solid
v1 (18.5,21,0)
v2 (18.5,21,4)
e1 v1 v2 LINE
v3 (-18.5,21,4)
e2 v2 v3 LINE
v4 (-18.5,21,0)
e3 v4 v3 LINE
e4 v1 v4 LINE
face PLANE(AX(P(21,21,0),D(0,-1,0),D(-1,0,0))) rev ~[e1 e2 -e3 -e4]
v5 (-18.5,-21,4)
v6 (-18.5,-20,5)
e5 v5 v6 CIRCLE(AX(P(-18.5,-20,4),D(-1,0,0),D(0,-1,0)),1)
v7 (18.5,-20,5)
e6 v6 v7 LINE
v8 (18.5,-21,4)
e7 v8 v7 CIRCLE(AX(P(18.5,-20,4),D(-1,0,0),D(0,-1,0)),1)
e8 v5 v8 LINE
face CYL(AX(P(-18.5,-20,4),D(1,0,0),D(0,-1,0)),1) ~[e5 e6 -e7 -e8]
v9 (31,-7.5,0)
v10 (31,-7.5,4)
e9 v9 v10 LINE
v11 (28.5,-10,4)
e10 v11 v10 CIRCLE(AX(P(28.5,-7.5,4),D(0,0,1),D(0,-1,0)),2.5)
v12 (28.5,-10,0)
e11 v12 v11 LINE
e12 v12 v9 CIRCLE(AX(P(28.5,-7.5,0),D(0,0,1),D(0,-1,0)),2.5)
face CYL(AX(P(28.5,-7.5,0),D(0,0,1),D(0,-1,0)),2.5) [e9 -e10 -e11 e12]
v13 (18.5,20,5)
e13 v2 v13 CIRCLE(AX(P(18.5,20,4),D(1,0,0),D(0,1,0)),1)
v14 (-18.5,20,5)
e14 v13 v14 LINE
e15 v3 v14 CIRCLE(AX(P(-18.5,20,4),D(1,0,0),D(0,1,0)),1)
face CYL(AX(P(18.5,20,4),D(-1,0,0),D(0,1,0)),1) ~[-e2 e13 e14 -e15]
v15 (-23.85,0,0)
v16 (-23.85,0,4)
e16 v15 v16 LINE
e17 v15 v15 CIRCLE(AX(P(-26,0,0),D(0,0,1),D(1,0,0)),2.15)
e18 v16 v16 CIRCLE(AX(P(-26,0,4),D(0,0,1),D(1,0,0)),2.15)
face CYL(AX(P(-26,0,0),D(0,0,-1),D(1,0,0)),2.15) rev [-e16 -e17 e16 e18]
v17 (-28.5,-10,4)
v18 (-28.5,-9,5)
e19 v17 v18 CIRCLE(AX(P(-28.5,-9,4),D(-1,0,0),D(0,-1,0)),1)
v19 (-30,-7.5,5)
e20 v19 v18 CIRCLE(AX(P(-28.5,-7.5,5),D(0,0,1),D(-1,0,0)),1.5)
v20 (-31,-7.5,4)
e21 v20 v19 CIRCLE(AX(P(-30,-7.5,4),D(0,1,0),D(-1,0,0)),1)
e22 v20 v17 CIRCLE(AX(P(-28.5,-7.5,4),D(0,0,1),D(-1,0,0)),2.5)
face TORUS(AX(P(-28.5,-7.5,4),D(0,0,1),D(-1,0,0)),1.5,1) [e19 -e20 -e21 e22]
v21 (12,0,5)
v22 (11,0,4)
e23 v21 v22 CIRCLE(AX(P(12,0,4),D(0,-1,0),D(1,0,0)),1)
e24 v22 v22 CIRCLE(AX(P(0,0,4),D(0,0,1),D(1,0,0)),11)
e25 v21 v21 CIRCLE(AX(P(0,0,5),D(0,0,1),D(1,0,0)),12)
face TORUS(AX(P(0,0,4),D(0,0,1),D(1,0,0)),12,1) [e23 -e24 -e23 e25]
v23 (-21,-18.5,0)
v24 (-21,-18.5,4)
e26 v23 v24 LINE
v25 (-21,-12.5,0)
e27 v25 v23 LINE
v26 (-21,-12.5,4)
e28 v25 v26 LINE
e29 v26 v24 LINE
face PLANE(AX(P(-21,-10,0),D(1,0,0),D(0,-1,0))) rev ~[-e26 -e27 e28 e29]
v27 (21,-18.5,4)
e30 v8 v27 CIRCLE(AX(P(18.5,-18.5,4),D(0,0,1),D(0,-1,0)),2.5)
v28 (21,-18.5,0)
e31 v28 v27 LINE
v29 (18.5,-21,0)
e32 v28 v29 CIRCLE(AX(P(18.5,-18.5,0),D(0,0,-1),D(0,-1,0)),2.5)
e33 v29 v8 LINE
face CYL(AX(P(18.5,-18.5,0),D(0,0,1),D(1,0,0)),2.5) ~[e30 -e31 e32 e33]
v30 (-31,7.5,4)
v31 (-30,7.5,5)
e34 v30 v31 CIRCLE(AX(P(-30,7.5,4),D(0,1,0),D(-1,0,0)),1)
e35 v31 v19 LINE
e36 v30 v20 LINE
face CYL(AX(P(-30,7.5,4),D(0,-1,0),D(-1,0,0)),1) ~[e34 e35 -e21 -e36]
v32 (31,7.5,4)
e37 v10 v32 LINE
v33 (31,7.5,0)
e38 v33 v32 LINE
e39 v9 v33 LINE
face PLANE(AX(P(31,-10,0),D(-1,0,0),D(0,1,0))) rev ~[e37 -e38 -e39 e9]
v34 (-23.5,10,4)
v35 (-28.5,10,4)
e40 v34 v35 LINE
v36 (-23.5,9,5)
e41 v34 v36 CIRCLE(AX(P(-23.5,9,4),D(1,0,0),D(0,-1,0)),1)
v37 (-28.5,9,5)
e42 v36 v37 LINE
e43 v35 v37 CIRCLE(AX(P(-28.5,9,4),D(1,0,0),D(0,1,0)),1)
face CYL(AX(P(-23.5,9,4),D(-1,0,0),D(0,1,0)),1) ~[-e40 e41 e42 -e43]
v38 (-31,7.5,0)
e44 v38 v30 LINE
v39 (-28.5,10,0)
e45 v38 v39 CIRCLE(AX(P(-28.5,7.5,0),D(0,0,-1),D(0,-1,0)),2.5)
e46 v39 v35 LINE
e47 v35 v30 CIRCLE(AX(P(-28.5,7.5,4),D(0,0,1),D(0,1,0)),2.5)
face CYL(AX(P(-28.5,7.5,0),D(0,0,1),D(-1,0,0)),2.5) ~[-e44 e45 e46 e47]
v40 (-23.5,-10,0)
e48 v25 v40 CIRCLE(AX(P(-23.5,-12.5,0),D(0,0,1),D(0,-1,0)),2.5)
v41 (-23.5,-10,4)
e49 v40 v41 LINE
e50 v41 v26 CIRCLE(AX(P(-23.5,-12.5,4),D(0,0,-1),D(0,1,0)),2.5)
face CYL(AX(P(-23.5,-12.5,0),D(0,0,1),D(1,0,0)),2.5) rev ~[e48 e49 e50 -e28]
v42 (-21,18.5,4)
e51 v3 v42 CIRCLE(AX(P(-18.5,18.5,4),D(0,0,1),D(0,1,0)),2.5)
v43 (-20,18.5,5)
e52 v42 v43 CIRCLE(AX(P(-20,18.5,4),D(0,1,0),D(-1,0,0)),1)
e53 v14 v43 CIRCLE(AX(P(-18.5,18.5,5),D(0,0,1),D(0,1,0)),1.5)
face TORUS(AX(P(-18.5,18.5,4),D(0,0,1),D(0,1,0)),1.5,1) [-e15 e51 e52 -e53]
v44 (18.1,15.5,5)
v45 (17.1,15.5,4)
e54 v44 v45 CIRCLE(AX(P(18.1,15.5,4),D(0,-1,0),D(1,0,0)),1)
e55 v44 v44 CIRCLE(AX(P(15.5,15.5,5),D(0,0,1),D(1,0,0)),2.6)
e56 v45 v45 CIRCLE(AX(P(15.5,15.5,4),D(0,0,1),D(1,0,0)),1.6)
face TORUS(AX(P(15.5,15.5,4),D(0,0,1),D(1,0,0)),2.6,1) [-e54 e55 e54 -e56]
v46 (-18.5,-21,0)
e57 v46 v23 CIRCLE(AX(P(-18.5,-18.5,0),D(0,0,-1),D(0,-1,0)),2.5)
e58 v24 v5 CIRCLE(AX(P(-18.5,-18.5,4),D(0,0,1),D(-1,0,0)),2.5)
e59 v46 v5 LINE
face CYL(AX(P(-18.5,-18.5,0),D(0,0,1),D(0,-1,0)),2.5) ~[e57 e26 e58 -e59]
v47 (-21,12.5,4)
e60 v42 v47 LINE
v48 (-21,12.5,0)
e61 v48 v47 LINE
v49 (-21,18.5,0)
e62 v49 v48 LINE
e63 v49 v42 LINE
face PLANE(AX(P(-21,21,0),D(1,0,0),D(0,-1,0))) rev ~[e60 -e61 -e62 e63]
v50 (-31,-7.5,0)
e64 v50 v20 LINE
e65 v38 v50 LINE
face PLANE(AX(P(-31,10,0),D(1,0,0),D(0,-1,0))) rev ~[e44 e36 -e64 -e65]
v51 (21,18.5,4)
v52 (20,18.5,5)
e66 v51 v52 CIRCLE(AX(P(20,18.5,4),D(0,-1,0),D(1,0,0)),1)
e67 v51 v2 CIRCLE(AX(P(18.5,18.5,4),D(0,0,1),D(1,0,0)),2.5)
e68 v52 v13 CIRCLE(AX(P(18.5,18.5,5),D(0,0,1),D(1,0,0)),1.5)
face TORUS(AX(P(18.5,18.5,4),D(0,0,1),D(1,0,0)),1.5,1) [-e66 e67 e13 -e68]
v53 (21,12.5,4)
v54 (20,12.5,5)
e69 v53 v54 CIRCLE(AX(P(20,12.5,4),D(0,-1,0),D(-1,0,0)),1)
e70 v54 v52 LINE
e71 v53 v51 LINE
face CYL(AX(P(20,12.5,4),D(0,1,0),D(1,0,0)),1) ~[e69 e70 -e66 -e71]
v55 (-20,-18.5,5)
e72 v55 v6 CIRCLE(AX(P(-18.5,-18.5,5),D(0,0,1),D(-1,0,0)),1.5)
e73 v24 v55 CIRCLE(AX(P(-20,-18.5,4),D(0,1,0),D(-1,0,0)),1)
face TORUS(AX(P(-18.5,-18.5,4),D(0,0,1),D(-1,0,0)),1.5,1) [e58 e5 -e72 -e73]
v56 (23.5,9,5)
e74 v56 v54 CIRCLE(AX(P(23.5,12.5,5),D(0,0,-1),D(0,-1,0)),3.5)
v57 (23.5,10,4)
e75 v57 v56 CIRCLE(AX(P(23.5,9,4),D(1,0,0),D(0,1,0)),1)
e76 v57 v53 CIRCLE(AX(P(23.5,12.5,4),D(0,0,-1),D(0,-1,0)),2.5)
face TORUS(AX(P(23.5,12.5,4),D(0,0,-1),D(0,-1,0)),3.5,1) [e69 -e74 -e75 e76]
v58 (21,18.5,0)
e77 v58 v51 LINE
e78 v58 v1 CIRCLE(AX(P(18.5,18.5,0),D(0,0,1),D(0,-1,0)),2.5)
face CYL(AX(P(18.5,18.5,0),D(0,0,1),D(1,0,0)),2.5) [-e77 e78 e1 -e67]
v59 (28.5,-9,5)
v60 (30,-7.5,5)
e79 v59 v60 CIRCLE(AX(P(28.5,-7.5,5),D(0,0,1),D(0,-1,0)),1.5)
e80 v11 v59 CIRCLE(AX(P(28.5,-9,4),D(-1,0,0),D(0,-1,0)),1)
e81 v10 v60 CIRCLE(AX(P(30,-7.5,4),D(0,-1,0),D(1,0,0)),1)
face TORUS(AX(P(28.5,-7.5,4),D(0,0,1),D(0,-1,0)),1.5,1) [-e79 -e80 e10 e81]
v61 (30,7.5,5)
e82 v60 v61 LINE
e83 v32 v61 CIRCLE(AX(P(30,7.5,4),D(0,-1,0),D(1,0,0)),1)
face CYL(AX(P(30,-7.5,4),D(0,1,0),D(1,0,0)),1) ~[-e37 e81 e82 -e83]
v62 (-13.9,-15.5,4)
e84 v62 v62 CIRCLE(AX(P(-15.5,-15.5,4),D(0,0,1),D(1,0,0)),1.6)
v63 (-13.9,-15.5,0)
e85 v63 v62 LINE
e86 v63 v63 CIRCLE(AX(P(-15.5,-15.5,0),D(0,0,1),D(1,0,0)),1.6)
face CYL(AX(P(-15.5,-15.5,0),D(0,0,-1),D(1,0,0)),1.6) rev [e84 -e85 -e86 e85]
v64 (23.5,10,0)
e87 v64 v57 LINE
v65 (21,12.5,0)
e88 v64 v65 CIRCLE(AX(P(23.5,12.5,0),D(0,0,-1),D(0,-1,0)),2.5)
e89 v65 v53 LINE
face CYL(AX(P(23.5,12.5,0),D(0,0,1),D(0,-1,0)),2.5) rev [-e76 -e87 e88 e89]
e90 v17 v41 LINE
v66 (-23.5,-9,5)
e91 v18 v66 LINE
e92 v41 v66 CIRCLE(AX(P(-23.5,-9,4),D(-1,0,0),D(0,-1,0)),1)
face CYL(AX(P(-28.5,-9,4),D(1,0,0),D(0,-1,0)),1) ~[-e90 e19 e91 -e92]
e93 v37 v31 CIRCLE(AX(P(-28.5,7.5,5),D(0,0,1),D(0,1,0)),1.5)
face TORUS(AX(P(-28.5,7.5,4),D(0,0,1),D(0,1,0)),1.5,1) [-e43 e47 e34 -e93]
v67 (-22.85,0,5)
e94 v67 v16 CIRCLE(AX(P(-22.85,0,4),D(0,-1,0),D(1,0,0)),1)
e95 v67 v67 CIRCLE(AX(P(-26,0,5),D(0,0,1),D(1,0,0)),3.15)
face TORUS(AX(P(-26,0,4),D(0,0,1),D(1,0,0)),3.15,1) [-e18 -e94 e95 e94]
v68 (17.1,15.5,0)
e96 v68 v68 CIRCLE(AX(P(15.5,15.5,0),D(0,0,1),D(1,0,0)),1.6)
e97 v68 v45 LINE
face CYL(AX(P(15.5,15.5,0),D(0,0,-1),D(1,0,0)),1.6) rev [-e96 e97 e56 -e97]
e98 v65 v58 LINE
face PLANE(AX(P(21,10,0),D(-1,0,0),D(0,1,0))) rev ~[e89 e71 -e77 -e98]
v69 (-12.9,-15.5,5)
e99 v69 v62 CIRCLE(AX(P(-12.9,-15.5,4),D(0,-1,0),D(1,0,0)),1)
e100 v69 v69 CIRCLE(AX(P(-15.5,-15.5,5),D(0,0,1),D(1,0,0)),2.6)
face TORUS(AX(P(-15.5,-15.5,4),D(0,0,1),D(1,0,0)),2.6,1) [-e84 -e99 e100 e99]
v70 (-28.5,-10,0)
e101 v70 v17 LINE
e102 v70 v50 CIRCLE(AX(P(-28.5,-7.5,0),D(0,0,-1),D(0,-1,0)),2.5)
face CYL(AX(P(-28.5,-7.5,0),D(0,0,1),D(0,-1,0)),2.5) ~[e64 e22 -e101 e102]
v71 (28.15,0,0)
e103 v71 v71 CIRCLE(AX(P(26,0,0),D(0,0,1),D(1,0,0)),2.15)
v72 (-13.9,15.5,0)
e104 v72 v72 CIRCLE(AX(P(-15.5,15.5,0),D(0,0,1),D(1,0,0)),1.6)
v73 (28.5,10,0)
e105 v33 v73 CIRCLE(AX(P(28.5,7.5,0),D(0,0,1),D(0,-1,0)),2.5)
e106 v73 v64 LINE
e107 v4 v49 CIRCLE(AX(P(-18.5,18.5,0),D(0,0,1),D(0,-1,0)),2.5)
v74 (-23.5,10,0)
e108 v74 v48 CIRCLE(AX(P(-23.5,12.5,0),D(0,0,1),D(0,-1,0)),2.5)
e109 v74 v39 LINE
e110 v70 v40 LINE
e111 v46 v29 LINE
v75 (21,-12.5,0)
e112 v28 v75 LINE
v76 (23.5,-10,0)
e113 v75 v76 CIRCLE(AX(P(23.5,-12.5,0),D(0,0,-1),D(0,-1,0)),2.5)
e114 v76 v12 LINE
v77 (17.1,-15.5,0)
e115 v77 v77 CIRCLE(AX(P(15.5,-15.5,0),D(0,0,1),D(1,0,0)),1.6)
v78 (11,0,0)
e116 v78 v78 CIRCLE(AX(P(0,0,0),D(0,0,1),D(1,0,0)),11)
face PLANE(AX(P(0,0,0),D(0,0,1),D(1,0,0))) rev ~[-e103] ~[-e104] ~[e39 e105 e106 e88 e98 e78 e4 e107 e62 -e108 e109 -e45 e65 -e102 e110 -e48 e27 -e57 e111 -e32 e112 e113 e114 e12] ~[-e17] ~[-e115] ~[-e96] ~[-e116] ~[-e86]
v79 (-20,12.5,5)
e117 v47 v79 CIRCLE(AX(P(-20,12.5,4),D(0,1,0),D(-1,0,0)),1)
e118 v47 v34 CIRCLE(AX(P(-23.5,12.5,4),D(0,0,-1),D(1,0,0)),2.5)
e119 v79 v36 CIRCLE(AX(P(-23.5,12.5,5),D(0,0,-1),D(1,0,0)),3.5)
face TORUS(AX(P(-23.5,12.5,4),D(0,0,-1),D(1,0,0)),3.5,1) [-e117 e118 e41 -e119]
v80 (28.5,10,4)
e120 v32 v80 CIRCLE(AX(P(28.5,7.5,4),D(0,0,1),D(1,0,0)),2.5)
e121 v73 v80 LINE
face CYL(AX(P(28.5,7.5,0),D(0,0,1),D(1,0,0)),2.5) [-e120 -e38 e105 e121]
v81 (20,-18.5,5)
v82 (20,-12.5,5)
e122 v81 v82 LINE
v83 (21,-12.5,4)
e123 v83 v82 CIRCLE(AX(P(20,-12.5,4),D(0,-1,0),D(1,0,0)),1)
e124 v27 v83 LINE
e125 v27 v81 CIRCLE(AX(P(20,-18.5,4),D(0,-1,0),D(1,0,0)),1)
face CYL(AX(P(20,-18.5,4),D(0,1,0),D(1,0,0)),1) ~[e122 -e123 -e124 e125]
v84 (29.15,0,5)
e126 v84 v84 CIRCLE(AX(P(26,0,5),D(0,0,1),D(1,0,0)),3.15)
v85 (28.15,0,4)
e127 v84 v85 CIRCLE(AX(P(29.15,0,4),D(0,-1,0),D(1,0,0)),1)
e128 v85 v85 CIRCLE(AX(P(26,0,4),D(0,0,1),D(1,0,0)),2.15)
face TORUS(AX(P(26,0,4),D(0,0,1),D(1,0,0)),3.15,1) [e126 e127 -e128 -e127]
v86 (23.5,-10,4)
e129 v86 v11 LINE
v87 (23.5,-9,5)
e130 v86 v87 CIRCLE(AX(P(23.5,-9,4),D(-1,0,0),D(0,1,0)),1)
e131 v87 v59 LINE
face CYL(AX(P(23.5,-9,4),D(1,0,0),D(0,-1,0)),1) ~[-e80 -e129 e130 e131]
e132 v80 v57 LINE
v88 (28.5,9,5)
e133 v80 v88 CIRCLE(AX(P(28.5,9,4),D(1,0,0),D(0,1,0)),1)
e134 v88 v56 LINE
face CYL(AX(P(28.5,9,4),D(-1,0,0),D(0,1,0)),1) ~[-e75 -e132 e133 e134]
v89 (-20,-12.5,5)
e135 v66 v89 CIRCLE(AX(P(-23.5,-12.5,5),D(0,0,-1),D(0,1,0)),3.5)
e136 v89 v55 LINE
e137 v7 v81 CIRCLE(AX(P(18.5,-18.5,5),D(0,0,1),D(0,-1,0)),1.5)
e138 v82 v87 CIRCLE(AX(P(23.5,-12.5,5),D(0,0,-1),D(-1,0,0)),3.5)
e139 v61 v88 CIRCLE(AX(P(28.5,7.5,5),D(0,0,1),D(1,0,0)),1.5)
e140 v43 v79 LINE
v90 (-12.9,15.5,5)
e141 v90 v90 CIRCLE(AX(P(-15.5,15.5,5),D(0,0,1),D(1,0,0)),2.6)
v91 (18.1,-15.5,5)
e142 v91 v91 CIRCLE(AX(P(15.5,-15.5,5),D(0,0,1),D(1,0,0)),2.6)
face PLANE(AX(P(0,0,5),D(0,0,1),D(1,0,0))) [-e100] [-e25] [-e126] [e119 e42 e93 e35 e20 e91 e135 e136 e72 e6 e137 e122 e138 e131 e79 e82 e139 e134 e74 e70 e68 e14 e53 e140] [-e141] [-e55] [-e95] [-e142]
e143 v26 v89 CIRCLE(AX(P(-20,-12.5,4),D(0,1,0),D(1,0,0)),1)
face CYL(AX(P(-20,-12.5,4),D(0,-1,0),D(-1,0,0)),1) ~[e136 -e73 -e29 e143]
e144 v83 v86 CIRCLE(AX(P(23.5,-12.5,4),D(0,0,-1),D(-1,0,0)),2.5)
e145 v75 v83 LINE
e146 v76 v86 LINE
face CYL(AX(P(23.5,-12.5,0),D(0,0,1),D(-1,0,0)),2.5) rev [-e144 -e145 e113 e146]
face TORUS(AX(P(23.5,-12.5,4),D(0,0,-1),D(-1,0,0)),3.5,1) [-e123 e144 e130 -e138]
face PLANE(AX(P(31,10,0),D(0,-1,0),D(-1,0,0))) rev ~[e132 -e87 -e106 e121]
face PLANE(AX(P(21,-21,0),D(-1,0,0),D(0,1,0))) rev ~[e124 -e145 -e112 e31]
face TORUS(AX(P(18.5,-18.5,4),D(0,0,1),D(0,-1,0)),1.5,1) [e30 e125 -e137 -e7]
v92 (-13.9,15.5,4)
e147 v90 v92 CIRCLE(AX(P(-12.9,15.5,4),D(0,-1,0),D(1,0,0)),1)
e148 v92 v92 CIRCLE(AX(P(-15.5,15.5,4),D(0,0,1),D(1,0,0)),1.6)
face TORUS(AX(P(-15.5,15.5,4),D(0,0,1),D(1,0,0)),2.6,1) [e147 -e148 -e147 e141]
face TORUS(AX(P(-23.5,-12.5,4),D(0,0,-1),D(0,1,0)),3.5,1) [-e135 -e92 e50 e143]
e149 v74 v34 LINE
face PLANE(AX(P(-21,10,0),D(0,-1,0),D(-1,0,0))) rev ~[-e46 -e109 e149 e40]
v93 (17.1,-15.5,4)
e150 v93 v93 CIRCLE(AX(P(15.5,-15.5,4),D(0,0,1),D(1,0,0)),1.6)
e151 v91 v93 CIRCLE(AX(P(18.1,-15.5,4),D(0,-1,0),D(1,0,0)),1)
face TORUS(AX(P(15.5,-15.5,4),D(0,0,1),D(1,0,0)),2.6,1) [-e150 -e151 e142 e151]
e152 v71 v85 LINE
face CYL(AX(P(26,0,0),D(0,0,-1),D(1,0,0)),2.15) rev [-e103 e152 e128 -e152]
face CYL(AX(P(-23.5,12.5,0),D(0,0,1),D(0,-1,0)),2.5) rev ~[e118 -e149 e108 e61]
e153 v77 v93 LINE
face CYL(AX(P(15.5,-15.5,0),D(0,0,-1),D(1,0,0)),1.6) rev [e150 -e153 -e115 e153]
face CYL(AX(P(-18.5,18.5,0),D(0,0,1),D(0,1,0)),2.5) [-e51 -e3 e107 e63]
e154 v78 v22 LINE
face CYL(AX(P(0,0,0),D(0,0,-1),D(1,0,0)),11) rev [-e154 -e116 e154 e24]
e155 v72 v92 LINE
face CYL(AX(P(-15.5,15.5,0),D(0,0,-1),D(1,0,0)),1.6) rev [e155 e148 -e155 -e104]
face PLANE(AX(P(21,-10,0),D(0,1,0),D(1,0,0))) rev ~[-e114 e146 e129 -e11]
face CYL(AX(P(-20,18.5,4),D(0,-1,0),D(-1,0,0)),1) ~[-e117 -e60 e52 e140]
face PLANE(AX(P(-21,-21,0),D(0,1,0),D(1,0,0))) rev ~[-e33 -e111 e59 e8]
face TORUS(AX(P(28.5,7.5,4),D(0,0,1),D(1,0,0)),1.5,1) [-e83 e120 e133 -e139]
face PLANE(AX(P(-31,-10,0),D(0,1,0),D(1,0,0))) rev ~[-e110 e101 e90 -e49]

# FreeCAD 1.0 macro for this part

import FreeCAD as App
import Part
import Sketcher
Q = App.Units.Quantity


def edges_at(feature, points):
    """Names of the edges that pass closest to the given points."""
    edges = feature.Shape.Edges
    near = lambda p: min(range(len(edges)), key=lambda i: edges[i].distToShape(Part.Vertex(*p))[0])
    return sorted({f"Edge{near(p) + 1}" for p in points})


def add_polygon(sketch, points):
    """Adds a closed chain of lines whose ends are joined by coincident constraints."""
    first, n = sketch.GeometryCount, len(points)
    for a, b in zip(points, points[1:] + points[:1]):
        sketch.addGeometry(Part.LineSegment(App.Vector(*a, 0), App.Vector(*b, 0)), False)
    for i in range(n):
        sketch.addConstraint(Sketcher.Constraint("Coincident", first + i, 2, first + (i + 1) % n, 1))

doc = App.newDocument("Part")
params = doc.addObject("Spreadsheet::Sheet", "Params")
for row, (alias, value) in enumerate([
    ("sketch1_diameter", "22 mm"),
    ("sketch1_diameter2", "3.2 mm"),
    ("sketch1_diameter3", "4.3 mm"),
    ("sketch1_width", "10 mm"),
    ("sketch1_width2", "42 mm"),
    ("pad1_length", "5 mm"),
    ("fillet_radius", "2.5 mm"),
    ("fillet2_radius", "1 mm"),
], start=1):
    params.set(f"A{row}", alias)
    params.set(f"B{row}", "=" + value)
    params.setAlias(f"B{row}", alias)

body = doc.addObject("PartDesign::Body", "Body")

# Sketch on XY plane
sketch1 = body.newObject("Sketcher::SketchObject", "Sketch")
sketch1.AttachmentSupport = (doc.getObject("XY_Plane"), [""])
sketch1.MapMode = "FlatFace"
add_polygon(sketch1, [(21, -21), (21, -10), (31, -10), (31, 10), (21, 10), (21, 21), (-21, 21), (-21, 10), (-31, 10), (-31, -10), (-21, -10), (-21, -21)])  # lines 0-11
sketch1.addGeometry(Part.Circle(App.Vector(-15.5, -15.5, 0), App.Vector(0, 0, 1), 1.6), False)  # 12
sketch1.addGeometry(Part.Circle(App.Vector(15.5, -15.5, 0), App.Vector(0, 0, 1), 1.6), False)  # 13
sketch1.addGeometry(Part.Circle(App.Vector(-26, 0, 0), App.Vector(0, 0, 1), 2.1), False)  # 14
sketch1.addGeometry(Part.Circle(App.Vector(-15.5, 15.5, 0), App.Vector(0, 0, 1), 1.6), False)  # 15
sketch1.addGeometry(Part.Circle(App.Vector(0, 0, 0), App.Vector(0, 0, 1), 11), False)  # 16
sketch1.addGeometry(Part.Circle(App.Vector(26, 0, 0), App.Vector(0, 0, 1), 2.1), False)  # 17
sketch1.addGeometry(Part.Circle(App.Vector(15.5, 15.5, 0), App.Vector(0, 0, 1), 1.6), False)  # 18
sketch1.addConstraint([
    Sketcher.Constraint("Vertical", 0),
    Sketcher.Constraint("Horizontal", 1),
    Sketcher.Constraint("Vertical", 2),
    Sketcher.Constraint("Horizontal", 3),
    Sketcher.Constraint("Vertical", 4),
    Sketcher.Constraint("Horizontal", 5),
    Sketcher.Constraint("Vertical", 6),
    Sketcher.Constraint("Horizontal", 7),
    Sketcher.Constraint("Vertical", 8),
    Sketcher.Constraint("Horizontal", 9),
    Sketcher.Constraint("Vertical", 10),
    Sketcher.Constraint("Horizontal", 11),
    Sketcher.Constraint("Coincident", 16, 3, -1, 1),
    Sketcher.Constraint("Equal", 12, 13),
    Sketcher.Constraint("Equal", 13, 15),
    Sketcher.Constraint("Equal", 14, 17),
    Sketcher.Constraint("Equal", 15, 18),
    Sketcher.Constraint("Symmetric", 13, 3, 15, 3, -1, 1),
    Sketcher.Constraint("Symmetric", 14, 3, 17, 3, -1, 1),
    Sketcher.Constraint("Symmetric", 12, 3, 18, 3, -1, 1),
    Sketcher.Constraint("Symmetric", 0, 2, 6, 2, -1, 1),
    Sketcher.Constraint("Symmetric", 2, 2, 8, 2, -1, 1),
    Sketcher.Constraint("Symmetric", 4, 2, 10, 2, -1, 1),
    Sketcher.Constraint("Symmetric", 12, 3, 13, 3, -2),
    Sketcher.Constraint("Symmetric", 3, 2, 6, 2, -2),
    Sketcher.Constraint("PointOnObject", 14, 3, -1),
    Sketcher.Constraint("Diameter", 16, Q("22 mm")),
    Sketcher.Constraint("Diameter", 12, Q("3.2 mm")),
    Sketcher.Constraint("Diameter", 14, Q("4.3 mm")),
    Sketcher.Constraint("DistanceX", 1, 1, 1, 2, Q("10 mm")),
    Sketcher.Constraint("DistanceX", 5, 2, 5, 1, Q("42 mm")),
    Sketcher.Constraint("DistanceY", 0, 1, 0, 2, Q("11 mm")),
    Sketcher.Constraint("DistanceY", 2, 1, 2, 2, Q("20 mm")),
    Sketcher.Constraint("DistanceX", 14, 3, -1, 1, Q("26 mm")),
    Sketcher.Constraint("DistanceX", 12, 3, 13, 3, Q("31 mm")),
    Sketcher.Constraint("DistanceY", 12, 3, 15, 3, Q("31 mm")),
])
sketch1.setExpression("Constraints[38]", "Params.sketch1_diameter")
sketch1.setExpression("Constraints[39]", "Params.sketch1_diameter2")
sketch1.setExpression("Constraints[40]", "Params.sketch1_diameter3")
sketch1.setExpression("Constraints[41]", "Params.sketch1_width")
sketch1.setExpression("Constraints[42]", "Params.sketch1_width2")
pad1 = body.newObject("PartDesign::Pad", "Pad")
pad1.Profile = sketch1
pad1.setExpression("Length", "Params.pad1_length")
doc.recompute()

fillet = body.newObject("PartDesign::Fillet", "Fillet")
fillet.Base = (pad1, edges_at(pad1, [
    (31, 10, 2.5),
    (21, 21, 2.5),
    (21, -10, 2.5),
    (21, -21, 2.5),
    (-21, -21, 2.5),
    (-21, -10, 2.5),
    (-31, -10, 2.5),
    (-31, 10, 2.5),
    (-21, 10, 2.5),
    (-21, 21, 2.5),
    (21, 10, 2.5),
    (31, -10, 2.5),
]))
fillet.setExpression("Radius", "Params.fillet_radius")
doc.recompute()

fillet2 = body.newObject("PartDesign::Fillet", "Fillet001")
fillet2.Base = (fillet, edges_at(fillet, [
    (21, -15.5, 5),
    (20.268, -20.268, 5),
    (21.732, -10.732, 5),
    (0, -21, 5),
    (26, -10, 5),
    (-20.268, -20.268, 5),
    (30.268, -9.268, 5),
    (-21, -15.5, 5),
    (31, 0, 5),
    (-21.732, -10.732, 5),
    (30.268, 9.268, 5),
    (-26, -10, 5),
    (26, 10, 5),
    (-30.268, -9.268, 5),
    (21.732, 10.732, 5),
    (-31, 0, 5),
    (21, 15.5, 5),
    (-30.268, 9.268, 5),
    (20.268, 20.268, 5),
    (-26, 10, 5),
    (0, 21, 5),
    (-21.732, 10.732, 5),
    (-20.268, 20.268, 5),
    (-21, 15.5, 5),
    (-11, 0, 5),
    (-28.15, 0, 5),
    (23.85, 0, 5),
    (-17.1, 15.5, 5),
    (13.9, 15.5, 5),
    (13.9, -15.5, 5),
    (-17.1, -15.5, 5),
]))
fillet2.setExpression("Radius", "Params.fillet2_radius")

doc.recompute()
